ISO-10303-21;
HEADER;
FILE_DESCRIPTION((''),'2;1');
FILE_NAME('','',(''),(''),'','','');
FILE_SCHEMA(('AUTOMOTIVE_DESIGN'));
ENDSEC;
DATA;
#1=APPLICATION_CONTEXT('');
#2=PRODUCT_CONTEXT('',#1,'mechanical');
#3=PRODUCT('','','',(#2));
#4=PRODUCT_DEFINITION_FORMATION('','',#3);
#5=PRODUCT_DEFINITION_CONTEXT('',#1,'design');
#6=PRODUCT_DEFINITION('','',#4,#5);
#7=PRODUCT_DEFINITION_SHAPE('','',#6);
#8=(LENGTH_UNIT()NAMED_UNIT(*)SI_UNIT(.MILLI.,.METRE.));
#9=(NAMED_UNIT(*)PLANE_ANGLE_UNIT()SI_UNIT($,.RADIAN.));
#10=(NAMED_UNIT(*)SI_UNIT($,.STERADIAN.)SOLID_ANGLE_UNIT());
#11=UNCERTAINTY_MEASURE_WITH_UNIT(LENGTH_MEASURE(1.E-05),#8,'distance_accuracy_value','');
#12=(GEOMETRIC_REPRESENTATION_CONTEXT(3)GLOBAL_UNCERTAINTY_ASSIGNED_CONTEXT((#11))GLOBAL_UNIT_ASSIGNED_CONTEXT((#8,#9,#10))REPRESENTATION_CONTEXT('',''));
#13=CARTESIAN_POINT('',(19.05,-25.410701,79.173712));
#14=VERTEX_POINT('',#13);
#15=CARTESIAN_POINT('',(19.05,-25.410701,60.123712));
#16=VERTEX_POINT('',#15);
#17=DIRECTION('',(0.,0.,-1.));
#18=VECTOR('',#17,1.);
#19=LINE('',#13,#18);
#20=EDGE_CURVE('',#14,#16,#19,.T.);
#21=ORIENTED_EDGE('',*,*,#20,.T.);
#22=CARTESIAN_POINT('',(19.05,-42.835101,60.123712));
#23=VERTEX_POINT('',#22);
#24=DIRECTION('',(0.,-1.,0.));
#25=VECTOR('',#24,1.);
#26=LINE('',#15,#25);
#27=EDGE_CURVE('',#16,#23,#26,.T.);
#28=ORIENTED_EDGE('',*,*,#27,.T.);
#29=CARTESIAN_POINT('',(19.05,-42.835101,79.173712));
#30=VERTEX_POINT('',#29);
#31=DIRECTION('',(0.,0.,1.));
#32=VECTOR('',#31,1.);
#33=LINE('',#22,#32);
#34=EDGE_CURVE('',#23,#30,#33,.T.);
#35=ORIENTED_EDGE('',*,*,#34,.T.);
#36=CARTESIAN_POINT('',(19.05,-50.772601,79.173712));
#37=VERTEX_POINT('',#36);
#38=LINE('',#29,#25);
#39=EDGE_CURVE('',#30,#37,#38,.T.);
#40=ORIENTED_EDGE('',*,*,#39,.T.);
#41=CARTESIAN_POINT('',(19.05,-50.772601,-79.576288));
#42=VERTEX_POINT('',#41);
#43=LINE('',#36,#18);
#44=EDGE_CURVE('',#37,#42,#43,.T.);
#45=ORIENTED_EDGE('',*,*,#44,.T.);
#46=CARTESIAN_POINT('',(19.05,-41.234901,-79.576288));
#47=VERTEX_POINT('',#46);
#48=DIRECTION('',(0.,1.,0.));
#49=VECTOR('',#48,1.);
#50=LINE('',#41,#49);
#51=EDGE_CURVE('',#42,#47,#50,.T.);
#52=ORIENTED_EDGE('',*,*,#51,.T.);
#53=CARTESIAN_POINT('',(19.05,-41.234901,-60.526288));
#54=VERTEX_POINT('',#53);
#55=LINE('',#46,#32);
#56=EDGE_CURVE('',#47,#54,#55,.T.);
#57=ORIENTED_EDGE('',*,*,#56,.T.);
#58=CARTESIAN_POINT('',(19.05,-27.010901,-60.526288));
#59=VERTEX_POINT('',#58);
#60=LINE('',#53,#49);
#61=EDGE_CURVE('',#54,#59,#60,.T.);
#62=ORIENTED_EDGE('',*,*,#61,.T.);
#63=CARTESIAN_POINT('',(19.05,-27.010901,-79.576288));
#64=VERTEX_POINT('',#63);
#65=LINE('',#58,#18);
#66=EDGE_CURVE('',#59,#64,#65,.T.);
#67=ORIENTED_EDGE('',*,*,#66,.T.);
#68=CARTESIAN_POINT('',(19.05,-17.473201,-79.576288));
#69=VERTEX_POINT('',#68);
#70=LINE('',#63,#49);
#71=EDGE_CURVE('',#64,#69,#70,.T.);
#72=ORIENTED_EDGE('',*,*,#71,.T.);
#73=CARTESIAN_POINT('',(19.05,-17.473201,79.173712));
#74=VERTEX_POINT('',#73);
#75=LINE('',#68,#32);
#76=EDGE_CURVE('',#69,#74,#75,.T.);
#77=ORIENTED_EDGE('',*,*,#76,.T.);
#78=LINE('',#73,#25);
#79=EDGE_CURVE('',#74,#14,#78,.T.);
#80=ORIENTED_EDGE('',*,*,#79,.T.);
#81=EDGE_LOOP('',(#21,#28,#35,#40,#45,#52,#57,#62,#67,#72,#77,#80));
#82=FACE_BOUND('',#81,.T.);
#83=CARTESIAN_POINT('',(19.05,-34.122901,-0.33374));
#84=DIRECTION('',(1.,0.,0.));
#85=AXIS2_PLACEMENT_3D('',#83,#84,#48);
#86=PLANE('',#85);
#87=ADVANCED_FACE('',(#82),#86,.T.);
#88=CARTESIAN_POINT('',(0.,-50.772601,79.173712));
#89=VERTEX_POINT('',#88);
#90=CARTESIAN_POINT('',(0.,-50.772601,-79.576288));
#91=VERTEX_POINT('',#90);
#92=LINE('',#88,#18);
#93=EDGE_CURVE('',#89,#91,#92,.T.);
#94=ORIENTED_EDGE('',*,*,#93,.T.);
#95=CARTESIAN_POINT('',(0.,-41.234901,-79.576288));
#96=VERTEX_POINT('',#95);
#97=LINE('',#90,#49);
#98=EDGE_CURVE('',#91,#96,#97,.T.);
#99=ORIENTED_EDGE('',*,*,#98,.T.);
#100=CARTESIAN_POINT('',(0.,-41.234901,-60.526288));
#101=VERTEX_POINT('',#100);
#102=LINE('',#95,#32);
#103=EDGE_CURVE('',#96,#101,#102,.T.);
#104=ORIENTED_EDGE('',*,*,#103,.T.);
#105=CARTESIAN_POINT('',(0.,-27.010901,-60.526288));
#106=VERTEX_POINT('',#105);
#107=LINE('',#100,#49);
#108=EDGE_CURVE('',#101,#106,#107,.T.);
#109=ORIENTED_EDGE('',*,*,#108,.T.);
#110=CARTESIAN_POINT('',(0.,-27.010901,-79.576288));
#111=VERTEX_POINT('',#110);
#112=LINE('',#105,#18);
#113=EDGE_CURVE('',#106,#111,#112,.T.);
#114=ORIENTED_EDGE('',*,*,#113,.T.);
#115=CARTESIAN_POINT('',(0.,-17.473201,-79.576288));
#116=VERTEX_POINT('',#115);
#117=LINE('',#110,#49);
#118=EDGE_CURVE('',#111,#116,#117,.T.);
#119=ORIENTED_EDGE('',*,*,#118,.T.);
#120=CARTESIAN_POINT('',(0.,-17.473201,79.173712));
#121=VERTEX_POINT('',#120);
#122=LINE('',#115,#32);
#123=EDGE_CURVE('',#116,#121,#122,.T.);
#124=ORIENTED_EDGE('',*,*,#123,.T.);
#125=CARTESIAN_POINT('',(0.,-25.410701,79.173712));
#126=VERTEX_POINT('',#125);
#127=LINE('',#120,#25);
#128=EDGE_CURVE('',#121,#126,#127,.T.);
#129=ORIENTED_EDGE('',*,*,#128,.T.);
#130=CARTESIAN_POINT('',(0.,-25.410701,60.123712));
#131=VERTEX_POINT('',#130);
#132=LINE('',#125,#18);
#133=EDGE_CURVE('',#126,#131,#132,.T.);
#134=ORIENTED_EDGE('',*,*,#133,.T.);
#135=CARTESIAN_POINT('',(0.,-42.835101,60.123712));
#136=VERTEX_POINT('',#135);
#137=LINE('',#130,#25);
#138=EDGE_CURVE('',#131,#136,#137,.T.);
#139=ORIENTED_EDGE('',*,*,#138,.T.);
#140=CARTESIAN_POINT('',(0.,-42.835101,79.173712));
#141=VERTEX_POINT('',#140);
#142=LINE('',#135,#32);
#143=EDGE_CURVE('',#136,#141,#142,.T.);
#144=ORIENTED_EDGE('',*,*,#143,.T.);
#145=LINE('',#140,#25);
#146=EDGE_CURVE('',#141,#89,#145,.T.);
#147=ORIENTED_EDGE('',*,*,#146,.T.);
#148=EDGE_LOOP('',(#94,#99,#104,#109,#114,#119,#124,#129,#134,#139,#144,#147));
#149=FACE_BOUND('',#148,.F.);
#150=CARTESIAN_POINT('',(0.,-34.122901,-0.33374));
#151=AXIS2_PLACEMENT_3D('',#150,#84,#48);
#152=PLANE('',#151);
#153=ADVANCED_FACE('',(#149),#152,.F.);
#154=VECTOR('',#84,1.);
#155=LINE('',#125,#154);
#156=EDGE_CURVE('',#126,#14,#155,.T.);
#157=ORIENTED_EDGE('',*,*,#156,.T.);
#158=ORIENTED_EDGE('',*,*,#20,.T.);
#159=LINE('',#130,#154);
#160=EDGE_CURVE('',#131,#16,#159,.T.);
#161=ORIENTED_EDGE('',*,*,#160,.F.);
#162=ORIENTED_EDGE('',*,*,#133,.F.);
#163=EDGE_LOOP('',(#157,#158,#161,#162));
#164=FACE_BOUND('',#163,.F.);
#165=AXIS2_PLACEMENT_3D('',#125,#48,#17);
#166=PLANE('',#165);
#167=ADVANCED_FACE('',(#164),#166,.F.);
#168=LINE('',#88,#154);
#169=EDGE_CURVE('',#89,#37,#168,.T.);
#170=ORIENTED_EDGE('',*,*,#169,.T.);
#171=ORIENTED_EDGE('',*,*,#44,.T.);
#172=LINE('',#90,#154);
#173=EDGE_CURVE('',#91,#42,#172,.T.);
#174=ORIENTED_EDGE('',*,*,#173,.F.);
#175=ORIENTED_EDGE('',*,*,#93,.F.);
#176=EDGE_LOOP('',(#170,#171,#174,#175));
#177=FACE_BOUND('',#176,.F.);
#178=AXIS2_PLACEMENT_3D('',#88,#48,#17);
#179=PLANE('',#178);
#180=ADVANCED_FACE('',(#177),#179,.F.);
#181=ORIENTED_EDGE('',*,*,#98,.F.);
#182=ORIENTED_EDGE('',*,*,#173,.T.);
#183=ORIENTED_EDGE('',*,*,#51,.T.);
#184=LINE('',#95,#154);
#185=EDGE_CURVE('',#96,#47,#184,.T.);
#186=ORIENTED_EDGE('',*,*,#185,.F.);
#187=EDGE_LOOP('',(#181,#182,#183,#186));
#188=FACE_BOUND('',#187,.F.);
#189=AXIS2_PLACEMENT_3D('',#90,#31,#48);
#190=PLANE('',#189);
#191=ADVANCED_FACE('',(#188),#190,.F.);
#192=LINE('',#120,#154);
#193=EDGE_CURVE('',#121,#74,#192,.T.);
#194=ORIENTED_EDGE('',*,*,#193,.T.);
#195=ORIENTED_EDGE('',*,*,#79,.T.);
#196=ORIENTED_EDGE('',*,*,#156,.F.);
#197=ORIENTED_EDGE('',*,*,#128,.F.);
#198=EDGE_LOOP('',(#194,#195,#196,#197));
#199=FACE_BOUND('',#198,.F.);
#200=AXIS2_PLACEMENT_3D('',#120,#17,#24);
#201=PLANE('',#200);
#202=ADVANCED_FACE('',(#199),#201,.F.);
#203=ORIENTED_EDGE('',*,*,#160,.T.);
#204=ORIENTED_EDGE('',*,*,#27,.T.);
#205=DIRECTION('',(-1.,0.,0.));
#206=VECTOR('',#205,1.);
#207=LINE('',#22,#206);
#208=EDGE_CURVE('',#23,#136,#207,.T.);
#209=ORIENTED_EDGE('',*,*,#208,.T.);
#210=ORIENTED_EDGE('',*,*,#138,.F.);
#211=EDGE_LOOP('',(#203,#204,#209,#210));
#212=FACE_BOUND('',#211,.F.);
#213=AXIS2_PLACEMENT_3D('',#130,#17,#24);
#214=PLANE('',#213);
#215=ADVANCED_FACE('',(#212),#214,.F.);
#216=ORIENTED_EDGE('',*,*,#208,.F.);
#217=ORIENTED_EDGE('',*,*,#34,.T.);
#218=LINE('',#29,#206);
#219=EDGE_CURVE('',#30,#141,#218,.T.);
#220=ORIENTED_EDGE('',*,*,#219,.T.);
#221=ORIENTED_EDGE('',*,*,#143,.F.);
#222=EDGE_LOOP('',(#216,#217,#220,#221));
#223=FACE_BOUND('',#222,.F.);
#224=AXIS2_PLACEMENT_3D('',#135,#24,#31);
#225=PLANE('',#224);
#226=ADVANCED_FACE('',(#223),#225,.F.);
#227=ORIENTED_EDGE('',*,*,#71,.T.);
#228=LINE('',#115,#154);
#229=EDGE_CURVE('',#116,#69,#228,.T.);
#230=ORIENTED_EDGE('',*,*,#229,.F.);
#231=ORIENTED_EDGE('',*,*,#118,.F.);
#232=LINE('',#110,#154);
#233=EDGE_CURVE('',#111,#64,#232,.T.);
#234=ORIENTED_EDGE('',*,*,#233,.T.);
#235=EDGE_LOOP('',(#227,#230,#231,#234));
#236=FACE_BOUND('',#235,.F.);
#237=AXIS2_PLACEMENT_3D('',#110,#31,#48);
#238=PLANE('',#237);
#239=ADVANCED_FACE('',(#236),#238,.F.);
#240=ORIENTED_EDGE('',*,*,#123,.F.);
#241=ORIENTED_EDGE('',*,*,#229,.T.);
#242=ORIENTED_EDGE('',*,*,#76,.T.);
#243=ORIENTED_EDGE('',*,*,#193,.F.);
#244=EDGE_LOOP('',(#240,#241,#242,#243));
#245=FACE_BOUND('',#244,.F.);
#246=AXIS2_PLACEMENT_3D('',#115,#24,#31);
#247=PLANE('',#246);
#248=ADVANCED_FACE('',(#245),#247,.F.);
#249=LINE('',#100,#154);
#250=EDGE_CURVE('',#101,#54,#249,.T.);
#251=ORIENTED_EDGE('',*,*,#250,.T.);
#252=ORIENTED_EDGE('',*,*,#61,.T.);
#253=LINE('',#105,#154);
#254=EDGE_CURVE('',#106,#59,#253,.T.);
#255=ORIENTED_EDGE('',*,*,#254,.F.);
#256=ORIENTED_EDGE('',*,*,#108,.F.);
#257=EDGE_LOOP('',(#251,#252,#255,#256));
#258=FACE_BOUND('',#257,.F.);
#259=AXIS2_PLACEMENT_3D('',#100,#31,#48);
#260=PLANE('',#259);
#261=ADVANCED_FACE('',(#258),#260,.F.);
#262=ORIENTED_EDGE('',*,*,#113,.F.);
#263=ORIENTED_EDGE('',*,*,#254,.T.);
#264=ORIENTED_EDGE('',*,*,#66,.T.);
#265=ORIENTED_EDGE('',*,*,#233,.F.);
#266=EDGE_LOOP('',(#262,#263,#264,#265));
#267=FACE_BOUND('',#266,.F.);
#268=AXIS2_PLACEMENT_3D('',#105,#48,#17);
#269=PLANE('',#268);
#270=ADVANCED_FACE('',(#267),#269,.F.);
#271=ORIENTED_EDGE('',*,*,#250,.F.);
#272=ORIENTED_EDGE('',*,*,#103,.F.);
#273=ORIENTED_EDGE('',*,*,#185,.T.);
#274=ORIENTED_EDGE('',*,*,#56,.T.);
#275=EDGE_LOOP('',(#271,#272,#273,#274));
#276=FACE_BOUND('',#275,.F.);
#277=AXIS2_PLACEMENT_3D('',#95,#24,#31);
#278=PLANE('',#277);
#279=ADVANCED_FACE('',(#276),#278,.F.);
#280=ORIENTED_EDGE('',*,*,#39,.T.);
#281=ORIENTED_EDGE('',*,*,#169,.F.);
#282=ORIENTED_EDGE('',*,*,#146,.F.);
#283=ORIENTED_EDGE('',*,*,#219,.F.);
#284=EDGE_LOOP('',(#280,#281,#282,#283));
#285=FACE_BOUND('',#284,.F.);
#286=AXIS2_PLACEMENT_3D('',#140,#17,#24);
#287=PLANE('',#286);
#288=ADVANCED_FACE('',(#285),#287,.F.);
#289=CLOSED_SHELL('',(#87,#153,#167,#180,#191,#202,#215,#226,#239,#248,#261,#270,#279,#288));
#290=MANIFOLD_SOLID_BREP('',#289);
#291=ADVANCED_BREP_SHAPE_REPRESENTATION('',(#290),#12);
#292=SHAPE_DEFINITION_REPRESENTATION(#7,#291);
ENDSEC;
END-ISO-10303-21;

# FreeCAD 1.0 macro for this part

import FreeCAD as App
import Part
import Sketcher

V = App.Vector
Q = App.Units.Quantity


def add_polygon(sketch, points):
    """Adds a closed chain of lines whose ends are joined by coincident constraints."""
    first, n = sketch.GeometryCount, len(points)
    for a, b in zip(points, points[1:] + points[:1]):
        sketch.addGeometry(Part.LineSegment(App.Vector(*a, 0), App.Vector(*b, 0)), False)
    for i in range(n):
        sketch.addConstraint(Sketcher.Constraint("Coincident", first + i, 2, first + (i + 1) % n, 1))

doc = App.newDocument("Part")
body = doc.addObject("PartDesign::Body", "Body")

sketch1 = body.newObject("Sketcher::SketchObject", "Sketch")
sketch1.AttachmentSupport = (doc.getObject("YZ_Plane"), [""])
sketch1.MapMode = "FlatFace"
add_polygon(sketch1, [(-43, 79), (-51, 79), (-51, -80), (-41, -80), (-41, -61), (-27, -61), (-27, -80), (-17, -80), (-17, 79), (-25, 79), (-25, 60), (-43, 60)])
sketch1.addConstraint([
    Sketcher.Constraint("Horizontal", 0),
    Sketcher.Constraint("Vertical", 1),
    Sketcher.Constraint("Horizontal", 2),
    Sketcher.Constraint("Vertical", 3),
    Sketcher.Constraint("Horizontal", 4),
    Sketcher.Constraint("Vertical", 5),
    Sketcher.Constraint("Horizontal", 6),
    Sketcher.Constraint("Vertical", 7),
    Sketcher.Constraint("Horizontal", 8),
    Sketcher.Constraint("Vertical", 9),
    Sketcher.Constraint("Horizontal", 10),
    Sketcher.Constraint("Vertical", 11),
    Sketcher.Constraint("Horizontal", 2, 2, 5, 2),
    Sketcher.Constraint("Horizontal", 0, 2, 7, 2),
    Sketcher.Constraint("Equal", 2, 6),
    Sketcher.Constraint("Equal", 0, 8),
    Sketcher.Constraint("Equal", 5, 9),
    Sketcher.Constraint("DistanceX", 4, 1, 4, 2, Q("0.56 in")),
    Sketcher.Constraint("DistanceY", 1, 2, 1, 1, Q("6.25 in")),
    Sketcher.Constraint("DistanceY", 3, 1, 3, 2, Q("0.75 in")),
    Sketcher.Constraint("DistanceX", 0, 2, 0, 1, Q("0.3125 in")),
    Sketcher.Constraint("DistanceX", 10, 2, 10, 1, Q("0.686 in")),
    Sketcher.Constraint("DistanceX", 0, 2, -1, 1, Q("50.772601 mm")),
    Sketcher.Constraint("DistanceY", -1, 1, 0, 2, Q("79.173712 mm")),
])
pad1 = body.newObject("PartDesign::Pad", "Pad")
pad1.Profile = sketch1
pad1.Length = Q("0.75 in")

sketch2 = body.newObject("Sketcher::SketchObject", "Sketch001")
sketch2.AttachmentSupport = (doc.getObject("YZ_Plane"), [""])
sketch2.MapMode = "FlatFace"
add_polygon(sketch2, [(-43, 79), (-51, 79), (-51, -80), (-41, -80), (-41, -61), (-27, -61), (-27, -80), (-17, -80), (-17, 79), (-25, 79), (-25, 60), (-43, 60)])
sketch2.addConstraint([
    Sketcher.Constraint("Horizontal", 0),
    Sketcher.Constraint("Vertical", 1),
    Sketcher.Constraint("Horizontal", 2),
    Sketcher.Constraint("Vertical", 3),
    Sketcher.Constraint("Horizontal", 4),
    Sketcher.Constraint("Vertical", 5),
    Sketcher.Constraint("Horizontal", 6),
    Sketcher.Constraint("Vertical", 7),
    Sketcher.Constraint("Horizontal", 8),
    Sketcher.Constraint("Vertical", 9),
    Sketcher.Constraint("Horizontal", 10),
    Sketcher.Constraint("Vertical", 11),
    Sketcher.Constraint("Horizontal", 2, 2, 5, 2),
    Sketcher.Constraint("Horizontal", 0, 2, 7, 2),
    Sketcher.Constraint("Equal", 2, 6),
    Sketcher.Constraint("Equal", 0, 8),
    Sketcher.Constraint("Equal", 5, 9),
    Sketcher.Constraint("DistanceX", 4, 1, 4, 2, Q("0.56 in")),
    Sketcher.Constraint("DistanceY", 1, 2, 1, 1, Q("6.25 in")),
    Sketcher.Constraint("DistanceY", 3, 1, 3, 2, Q("0.75 in")),
    Sketcher.Constraint("DistanceX", 0, 2, 0, 1, Q("0.3125 in")),
    Sketcher.Constraint("DistanceX", 10, 2, 10, 1, Q("0.686 in")),
    Sketcher.Constraint("DistanceX", 0, 2, -1, 1, Q("50.772601 mm")),
    Sketcher.Constraint("DistanceY", -1, 1, 0, 2, Q("79.173712 mm")),
])
pad2 = body.newObject("PartDesign::Pad", "Pad001")
pad2.Profile = sketch2
pad2.Length = Q("0.375 in")

doc.recompute()
